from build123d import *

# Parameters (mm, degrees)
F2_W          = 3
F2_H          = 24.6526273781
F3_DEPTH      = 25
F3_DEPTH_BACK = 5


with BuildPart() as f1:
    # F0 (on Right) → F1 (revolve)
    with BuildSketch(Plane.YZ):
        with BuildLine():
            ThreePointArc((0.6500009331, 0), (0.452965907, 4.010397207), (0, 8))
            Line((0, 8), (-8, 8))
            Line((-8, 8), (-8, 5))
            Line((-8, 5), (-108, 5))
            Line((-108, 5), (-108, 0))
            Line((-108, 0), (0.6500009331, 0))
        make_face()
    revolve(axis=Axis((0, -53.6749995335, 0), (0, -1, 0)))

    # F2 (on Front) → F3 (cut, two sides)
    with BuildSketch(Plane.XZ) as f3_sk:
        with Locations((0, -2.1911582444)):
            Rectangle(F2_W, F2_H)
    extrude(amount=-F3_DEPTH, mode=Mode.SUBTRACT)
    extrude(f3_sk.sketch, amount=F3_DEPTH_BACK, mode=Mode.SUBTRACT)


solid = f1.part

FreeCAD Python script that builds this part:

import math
import FreeCAD as App
import Part
import Sketcher

V = App.Vector
Q = App.Units.Quantity

doc = App.newDocument("Part")
params = doc.addObject("Spreadsheet::Sheet", "Params")
for row, (alias, value) in enumerate([
    ("sketch1_width", "8 mm"),
    ("sketch1_width2", "100 mm"),
    ("sketch1_height", "3 mm"),
    ("sketch1_height2", "5 mm"),
    ("sketch1_width3", "108.650001 mm"),
    ("revolution_angle", "360 deg"),
    ("sketch2_width", "3 mm"),
    ("pocket1_length", "25 mm"),
    ("pocket1_length2", "5 mm"),
], start=1):
    params.set(f"A{row}", alias)
    params.set(f"B{row}", "=" + value)
    params.setAlias(f"B{row}", alias)

body = doc.addObject("PartDesign::Body", "Body")

# Sketch on YZ plane
sketch1 = body.newObject("Sketcher::SketchObject", "Sketch")
sketch1.AttachmentSupport = (doc.getObject("YZ_Plane"), [""])
sketch1.MapMode = "FlatFace"
sketch1.addGeometry([
    Part.ArcOfCircle(Part.Circle(V(-62.127896, -1.074305, 0), V(0, 0, 1), 62.787089), math.radians(0.980395), math.radians(8.309775)),  # 0
    Part.LineSegment(V(0, 8, 0), V(-8, 8, 0)),  # 1
    Part.LineSegment(V(-8, 8, 0), V(-8, 5, 0)),  # 2
    Part.LineSegment(V(-8, 5, 0), V(-108, 5, 0)),  # 3
    Part.LineSegment(V(-108, 5, 0), V(-108, 0, 0)),  # 4
    Part.LineSegment(V(-108, 0, 0), V(0.650001, 0, 0)),  # 5
], False)
sketch1.addConstraint([
    Sketcher.Constraint("Coincident", 0, 2, 1, 1),
    Sketcher.Constraint("Coincident", 1, 2, 2, 1),
    Sketcher.Constraint("Coincident", 2, 2, 3, 1),
    Sketcher.Constraint("Coincident", 3, 2, 4, 1),
    Sketcher.Constraint("Coincident", 4, 2, 5, 1),
    Sketcher.Constraint("Coincident", 5, 2, 0, 1),
    Sketcher.Constraint("Horizontal", 1),
    Sketcher.Constraint("Vertical", 2),
    Sketcher.Constraint("Horizontal", 3),
    Sketcher.Constraint("Vertical", 4),
    Sketcher.Constraint("Horizontal", 5),
    Sketcher.Constraint("PointOnObject", 0, 2, -2),
    Sketcher.Constraint("PointOnObject", 4, 2, -1),
    Sketcher.Constraint("DistanceX", 1, 2, 1, 1, Q("8 mm")),
    Sketcher.Constraint("DistanceX", 3, 2, 3, 1, Q("100 mm")),
    Sketcher.Constraint("DistanceY", 2, 2, 2, 1, Q("3 mm")),
    Sketcher.Constraint("DistanceY", 4, 2, 4, 1, Q("5 mm")),
    Sketcher.Constraint("DistanceX", 5, 1, 5, 2, Q("108.650001 mm")),
    Sketcher.Constraint("Radius", 0, Q("62.787089 mm")),
])
sketch1.setExpression("Constraints[13]", "Params.sketch1_width")
sketch1.setExpression("Constraints[14]", "Params.sketch1_width2")
sketch1.setExpression("Constraints[15]", "Params.sketch1_height")
sketch1.setExpression("Constraints[16]", "Params.sketch1_height2")
sketch1.setExpression("Constraints[17]", "Params.sketch1_width3")
revolution = body.newObject("PartDesign::Revolution", "Revolution")
revolution.Profile = sketch1
revolution.ReferenceAxis = (sketch1, ["H_Axis"])
revolution.setExpression("Angle", "Params.revolution_angle")

# Sketch on XZ plane
sketch2 = body.newObject("Sketcher::SketchObject", "Sketch001")
sketch2.AttachmentSupport = (doc.getObject("XZ_Plane"), [""])
sketch2.MapMode = "FlatFace"
sketch2.addGeometry([
    Part.LineSegment(V(-1.5, 10.135155, 0), V(-1.5, -14.517472, 0)),
    Part.LineSegment(V(-1.5, -14.517472, 0), V(1.5, -14.517472, 0)),
    Part.LineSegment(V(1.5, -14.517472, 0), V(1.5, 10.135155, 0)),
    Part.LineSegment(V(1.5, 10.135155, 0), V(-1.5, 10.135155, 0)),
], False)
sketch2.addConstraint([
    Sketcher.Constraint("Coincident", 0, 2, 1, 1),
    Sketcher.Constraint("Coincident", 1, 2, 2, 1),
    Sketcher.Constraint("Coincident", 2, 2, 3, 1),
    Sketcher.Constraint("Coincident", 3, 2, 0, 1),
    Sketcher.Constraint("Vertical", 0),
    Sketcher.Constraint("Horizontal", 1),
    Sketcher.Constraint("Vertical", 2),
    Sketcher.Constraint("Horizontal", 3),
    Sketcher.Constraint("DistanceX", 1, 1, 1, 2, Q("3 mm")),
    Sketcher.Constraint("DistanceX", 0, 2, -1, 1, Q("1.5 mm")),
    Sketcher.Constraint("DistanceY", 0, 2, 0, 1, Q("24.652627 mm")),
    Sketcher.Constraint("DistanceY", 0, 2, -1, 1, Q("14.517472 mm")),
])
sketch2.setExpression("Constraints[8]", "Params.sketch2_width")
pocket1 = body.newObject("PartDesign::Pocket", "Pocket")
pocket1.Profile = sketch2
pocket1.Type = "TwoLengths"
pocket1.setExpression("Length", "Params.pocket1_length")
pocket1.setExpression("Length2", "Params.pocket1_length2")

doc.recompute()
